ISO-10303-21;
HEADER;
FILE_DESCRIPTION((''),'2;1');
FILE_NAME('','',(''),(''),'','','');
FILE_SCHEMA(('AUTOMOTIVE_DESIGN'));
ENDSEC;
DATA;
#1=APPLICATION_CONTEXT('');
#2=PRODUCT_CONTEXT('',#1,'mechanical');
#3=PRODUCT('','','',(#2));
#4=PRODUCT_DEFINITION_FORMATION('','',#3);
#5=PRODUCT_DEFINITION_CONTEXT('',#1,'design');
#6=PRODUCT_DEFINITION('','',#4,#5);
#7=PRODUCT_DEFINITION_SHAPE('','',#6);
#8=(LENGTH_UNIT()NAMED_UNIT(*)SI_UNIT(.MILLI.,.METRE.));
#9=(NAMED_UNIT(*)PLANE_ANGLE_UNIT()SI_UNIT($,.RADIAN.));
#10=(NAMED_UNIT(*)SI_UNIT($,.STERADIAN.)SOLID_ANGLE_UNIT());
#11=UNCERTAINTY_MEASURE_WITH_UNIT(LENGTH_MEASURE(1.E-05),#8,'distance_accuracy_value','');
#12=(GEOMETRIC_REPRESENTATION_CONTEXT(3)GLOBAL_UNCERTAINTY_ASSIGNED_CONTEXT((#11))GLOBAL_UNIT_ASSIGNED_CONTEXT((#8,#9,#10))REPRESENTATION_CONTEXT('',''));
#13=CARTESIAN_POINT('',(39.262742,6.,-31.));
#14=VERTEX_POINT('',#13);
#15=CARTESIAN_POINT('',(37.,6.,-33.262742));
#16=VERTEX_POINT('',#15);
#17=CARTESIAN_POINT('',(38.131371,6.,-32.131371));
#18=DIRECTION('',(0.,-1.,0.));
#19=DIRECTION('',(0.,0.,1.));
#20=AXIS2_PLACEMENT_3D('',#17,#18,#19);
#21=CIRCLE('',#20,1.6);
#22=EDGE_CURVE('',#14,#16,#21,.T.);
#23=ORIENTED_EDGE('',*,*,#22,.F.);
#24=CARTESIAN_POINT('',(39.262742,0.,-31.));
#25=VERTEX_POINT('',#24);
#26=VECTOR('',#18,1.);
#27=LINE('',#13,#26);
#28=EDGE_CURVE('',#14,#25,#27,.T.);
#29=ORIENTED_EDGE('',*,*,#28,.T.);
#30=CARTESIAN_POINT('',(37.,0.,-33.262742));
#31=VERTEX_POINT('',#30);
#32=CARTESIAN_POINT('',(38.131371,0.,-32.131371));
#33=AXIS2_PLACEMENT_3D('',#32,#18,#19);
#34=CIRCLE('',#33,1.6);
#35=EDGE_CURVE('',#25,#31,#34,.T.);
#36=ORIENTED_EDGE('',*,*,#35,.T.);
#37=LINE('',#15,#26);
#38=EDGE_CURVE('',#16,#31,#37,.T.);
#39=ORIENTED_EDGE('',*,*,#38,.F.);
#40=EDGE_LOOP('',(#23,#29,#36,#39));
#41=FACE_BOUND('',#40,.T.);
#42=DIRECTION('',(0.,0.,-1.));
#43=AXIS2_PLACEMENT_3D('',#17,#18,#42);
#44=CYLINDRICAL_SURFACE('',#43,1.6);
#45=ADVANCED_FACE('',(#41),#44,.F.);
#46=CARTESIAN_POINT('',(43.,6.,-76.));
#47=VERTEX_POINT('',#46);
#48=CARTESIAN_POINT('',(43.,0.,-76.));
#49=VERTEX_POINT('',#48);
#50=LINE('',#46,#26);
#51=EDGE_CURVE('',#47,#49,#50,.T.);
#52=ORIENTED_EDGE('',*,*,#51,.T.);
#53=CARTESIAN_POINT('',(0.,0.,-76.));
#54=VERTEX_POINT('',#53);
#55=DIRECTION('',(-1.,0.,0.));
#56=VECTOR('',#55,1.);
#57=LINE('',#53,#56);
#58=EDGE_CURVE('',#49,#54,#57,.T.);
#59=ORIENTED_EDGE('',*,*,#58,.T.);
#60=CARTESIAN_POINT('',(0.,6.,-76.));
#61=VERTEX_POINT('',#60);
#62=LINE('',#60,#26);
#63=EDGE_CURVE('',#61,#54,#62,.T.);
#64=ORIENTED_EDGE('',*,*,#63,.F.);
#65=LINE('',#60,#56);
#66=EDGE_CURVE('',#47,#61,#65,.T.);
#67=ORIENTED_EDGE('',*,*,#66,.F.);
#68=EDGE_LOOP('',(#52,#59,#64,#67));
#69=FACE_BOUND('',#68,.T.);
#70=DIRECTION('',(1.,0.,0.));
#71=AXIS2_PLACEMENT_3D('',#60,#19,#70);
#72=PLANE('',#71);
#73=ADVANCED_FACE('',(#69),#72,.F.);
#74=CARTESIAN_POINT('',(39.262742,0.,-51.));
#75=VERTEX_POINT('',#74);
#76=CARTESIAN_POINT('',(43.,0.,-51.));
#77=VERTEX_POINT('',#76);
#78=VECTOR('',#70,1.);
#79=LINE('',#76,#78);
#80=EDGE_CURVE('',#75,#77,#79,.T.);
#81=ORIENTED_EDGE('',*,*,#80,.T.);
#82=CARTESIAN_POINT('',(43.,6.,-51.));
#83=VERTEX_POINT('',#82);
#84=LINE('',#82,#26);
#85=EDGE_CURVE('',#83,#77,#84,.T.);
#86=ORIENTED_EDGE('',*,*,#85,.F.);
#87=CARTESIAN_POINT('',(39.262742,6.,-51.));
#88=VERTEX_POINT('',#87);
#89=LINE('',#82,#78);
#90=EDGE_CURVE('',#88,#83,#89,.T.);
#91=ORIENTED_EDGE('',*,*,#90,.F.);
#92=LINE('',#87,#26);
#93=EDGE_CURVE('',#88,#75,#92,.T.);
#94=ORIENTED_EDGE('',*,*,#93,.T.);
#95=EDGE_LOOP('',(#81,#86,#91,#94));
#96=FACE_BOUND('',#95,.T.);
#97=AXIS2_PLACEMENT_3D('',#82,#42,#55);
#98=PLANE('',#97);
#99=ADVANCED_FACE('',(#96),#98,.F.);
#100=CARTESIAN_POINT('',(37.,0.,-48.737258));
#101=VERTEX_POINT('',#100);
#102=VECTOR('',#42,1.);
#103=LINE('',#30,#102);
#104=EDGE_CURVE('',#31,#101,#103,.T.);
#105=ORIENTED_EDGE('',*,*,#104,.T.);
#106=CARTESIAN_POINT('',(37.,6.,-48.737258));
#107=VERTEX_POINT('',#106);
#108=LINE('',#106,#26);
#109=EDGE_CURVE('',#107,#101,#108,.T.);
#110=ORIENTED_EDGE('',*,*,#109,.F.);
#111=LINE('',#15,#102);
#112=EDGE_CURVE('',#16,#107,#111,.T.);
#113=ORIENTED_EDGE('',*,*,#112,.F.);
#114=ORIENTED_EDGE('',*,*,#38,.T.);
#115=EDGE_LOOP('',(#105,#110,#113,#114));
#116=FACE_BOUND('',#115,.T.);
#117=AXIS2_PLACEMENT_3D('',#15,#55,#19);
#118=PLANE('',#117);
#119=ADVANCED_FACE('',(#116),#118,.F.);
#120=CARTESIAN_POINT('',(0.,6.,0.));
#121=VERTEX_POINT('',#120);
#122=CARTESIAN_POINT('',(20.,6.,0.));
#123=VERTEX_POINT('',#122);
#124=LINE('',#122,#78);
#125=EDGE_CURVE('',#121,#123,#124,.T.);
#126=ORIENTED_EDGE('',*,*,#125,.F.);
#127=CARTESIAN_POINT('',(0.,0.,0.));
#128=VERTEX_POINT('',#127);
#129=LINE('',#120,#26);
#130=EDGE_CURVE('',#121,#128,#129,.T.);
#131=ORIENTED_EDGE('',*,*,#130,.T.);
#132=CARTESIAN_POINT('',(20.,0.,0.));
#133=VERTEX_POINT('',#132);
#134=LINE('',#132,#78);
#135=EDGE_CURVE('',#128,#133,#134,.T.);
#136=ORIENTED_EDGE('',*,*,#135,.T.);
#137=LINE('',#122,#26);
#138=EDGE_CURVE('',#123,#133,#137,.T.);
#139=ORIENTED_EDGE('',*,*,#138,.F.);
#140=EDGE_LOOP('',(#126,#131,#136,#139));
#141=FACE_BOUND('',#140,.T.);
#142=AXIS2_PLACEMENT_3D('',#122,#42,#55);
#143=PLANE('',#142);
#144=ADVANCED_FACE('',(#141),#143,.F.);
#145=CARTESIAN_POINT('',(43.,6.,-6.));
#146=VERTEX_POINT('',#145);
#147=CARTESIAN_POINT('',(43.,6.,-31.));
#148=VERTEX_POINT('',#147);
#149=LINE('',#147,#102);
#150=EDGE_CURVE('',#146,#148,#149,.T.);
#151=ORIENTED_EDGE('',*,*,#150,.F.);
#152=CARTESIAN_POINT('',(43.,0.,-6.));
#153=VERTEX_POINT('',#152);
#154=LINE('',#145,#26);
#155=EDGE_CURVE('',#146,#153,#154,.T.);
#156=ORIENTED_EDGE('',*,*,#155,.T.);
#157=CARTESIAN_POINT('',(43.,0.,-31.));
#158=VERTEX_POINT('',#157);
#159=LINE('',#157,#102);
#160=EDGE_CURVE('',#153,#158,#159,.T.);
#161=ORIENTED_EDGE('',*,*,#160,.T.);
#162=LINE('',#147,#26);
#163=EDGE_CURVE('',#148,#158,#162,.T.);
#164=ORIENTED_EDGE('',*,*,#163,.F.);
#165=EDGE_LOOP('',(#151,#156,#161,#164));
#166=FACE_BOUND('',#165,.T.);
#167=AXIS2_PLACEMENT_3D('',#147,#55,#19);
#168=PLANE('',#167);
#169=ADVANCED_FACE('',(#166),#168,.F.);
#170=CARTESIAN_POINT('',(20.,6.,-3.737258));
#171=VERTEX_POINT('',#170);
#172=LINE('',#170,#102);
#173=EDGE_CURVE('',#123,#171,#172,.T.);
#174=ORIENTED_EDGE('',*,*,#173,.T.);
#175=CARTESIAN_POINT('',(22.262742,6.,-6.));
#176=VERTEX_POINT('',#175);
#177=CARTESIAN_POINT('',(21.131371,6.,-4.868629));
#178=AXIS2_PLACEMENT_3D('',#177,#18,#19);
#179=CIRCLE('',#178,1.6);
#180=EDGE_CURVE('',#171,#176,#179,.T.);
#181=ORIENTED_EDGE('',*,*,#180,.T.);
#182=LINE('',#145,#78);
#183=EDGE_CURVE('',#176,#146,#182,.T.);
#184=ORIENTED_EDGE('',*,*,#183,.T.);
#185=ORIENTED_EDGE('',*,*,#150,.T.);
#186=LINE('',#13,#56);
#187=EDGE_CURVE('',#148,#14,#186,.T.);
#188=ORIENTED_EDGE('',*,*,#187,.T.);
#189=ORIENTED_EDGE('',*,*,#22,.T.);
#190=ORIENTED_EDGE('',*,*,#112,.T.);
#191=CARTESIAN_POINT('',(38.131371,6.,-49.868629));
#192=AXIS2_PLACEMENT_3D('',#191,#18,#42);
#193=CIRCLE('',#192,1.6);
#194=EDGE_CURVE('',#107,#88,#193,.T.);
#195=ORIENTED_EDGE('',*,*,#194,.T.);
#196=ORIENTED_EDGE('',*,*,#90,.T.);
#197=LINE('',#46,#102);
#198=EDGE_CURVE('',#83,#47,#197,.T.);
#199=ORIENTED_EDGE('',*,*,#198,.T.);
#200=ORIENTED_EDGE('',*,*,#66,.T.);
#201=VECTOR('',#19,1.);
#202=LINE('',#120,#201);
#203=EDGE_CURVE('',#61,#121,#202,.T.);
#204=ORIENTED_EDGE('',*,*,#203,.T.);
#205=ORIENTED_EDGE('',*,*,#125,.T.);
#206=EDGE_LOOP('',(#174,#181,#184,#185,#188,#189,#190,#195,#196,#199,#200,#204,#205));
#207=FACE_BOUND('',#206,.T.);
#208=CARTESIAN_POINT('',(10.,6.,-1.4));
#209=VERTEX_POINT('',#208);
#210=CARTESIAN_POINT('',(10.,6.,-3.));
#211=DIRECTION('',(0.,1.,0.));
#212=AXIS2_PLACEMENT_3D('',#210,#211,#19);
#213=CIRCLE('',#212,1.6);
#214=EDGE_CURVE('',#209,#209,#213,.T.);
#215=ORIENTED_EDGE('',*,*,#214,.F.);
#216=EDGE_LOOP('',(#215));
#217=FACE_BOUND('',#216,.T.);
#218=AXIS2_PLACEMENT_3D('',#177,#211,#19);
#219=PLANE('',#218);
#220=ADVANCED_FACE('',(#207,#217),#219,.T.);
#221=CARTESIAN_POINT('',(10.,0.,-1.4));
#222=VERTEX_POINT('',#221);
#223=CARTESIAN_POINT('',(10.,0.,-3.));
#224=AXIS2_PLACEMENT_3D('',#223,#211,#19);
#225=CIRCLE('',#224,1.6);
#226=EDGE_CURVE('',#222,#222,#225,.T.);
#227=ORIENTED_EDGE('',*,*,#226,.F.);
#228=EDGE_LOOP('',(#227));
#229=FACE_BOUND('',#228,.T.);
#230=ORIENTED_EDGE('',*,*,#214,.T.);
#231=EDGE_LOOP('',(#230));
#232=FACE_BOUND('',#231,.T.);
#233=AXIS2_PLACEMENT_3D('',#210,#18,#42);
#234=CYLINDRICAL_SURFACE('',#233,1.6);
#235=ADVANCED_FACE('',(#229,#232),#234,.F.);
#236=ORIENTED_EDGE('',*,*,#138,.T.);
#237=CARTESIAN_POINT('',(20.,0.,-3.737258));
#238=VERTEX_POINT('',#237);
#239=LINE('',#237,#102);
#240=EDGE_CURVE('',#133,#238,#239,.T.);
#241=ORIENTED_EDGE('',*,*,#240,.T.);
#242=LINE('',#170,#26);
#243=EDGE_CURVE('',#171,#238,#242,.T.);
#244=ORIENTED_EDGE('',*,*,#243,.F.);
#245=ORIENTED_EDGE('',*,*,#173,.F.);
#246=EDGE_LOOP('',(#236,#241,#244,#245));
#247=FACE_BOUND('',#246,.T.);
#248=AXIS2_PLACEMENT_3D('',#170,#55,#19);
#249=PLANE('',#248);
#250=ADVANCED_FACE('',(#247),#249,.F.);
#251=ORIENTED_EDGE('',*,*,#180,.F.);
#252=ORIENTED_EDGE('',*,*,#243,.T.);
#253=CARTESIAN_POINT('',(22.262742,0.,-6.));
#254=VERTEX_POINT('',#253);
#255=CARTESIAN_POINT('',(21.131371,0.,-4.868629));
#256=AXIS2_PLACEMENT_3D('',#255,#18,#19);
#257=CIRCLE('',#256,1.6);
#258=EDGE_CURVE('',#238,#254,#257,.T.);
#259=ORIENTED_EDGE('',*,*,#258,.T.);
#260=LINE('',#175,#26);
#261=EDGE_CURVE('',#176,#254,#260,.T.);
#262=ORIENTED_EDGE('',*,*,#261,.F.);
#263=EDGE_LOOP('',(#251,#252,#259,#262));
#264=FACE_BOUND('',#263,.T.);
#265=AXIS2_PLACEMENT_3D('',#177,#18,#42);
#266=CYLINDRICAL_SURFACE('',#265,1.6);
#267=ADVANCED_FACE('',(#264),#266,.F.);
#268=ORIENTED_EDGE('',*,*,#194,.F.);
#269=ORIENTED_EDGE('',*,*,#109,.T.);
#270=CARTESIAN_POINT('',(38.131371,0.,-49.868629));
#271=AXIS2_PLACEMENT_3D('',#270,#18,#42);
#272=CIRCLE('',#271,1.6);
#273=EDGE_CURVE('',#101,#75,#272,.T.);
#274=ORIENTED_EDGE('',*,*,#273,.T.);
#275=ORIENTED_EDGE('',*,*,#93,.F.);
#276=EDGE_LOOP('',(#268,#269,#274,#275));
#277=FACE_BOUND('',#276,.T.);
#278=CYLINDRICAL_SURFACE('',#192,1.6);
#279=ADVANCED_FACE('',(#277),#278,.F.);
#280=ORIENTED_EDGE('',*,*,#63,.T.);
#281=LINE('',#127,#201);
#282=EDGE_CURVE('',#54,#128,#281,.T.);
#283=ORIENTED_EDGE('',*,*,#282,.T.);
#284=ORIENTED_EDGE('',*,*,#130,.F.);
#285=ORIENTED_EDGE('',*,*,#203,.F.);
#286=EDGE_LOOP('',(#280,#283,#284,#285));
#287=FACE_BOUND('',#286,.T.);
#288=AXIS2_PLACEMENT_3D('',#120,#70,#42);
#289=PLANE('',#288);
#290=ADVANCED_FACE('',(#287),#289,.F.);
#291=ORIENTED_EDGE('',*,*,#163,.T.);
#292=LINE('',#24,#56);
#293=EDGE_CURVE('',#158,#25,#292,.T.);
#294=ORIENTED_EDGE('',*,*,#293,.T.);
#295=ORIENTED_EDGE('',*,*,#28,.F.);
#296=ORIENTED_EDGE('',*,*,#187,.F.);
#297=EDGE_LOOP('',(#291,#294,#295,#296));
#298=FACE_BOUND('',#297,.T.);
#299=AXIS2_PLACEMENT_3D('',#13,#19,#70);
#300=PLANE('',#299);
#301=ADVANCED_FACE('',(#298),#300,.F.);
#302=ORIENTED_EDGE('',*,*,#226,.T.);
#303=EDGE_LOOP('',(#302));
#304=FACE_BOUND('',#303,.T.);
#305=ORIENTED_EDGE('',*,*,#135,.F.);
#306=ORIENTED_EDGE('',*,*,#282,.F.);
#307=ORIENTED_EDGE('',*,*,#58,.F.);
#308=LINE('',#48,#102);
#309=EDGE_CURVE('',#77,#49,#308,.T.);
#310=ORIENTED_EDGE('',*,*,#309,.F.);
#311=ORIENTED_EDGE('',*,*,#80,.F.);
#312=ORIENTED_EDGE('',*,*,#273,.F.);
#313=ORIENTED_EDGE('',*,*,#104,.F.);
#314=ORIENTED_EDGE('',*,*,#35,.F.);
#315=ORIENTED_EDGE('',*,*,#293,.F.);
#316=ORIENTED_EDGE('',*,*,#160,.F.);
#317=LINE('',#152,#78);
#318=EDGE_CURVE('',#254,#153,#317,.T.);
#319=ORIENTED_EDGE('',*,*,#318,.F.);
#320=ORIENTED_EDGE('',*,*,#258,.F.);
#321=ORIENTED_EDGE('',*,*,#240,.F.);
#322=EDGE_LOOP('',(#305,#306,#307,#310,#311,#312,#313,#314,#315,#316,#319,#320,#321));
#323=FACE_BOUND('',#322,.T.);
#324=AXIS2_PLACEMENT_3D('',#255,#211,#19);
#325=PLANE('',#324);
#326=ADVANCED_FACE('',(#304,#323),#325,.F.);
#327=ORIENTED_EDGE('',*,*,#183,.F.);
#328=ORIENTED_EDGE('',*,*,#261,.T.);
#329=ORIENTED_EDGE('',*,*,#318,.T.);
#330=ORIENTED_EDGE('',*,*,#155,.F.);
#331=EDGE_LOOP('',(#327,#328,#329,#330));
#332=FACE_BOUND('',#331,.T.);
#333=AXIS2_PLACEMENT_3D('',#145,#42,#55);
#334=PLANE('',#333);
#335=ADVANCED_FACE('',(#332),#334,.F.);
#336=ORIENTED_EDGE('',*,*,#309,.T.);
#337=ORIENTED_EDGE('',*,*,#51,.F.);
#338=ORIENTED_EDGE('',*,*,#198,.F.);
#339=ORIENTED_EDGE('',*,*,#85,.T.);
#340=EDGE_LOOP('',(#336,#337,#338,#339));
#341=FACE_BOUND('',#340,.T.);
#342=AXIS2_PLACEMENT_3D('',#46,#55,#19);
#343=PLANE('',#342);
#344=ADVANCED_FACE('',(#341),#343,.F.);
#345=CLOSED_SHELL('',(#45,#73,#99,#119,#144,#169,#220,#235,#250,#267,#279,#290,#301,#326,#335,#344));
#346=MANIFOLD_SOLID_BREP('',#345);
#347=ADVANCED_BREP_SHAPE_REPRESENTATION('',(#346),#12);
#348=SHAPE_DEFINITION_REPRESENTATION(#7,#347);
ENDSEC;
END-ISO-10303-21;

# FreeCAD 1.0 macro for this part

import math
import FreeCAD as App
import Part
import Sketcher
from FreeCAD import Vector
Q = App.Units.Quantity

doc = App.newDocument("Part")
params = doc.addObject("Spreadsheet::Sheet", "Params")
for row, (alias, value) in enumerate([
    ("sketch1_diameter", "3.2 mm"),
    ("sketch1_width", "43 mm"),
    ("sketch1_width2", "20 mm"),
    ("sketch1_height", "25 mm"),
    ("sketch1_height2", "76 mm"),
    ("pad1_length", "6 mm"),
], start=1):
    params.set(f"A{row}", alias)
    params.set(f"B{row}", "=" + value)
    params.setAlias(f"B{row}", alias)

body = doc.addObject("PartDesign::Body", "Body")

sketch1 = doc.addObject("Sketcher::SketchObject", "Sketch")
body.addObject(sketch1)
sketch1.AttachmentSupport = (doc.XZ_Plane, [""])
sketch1.MapMode = "FlatFace"
sketch1.addGeometry([
    Part.LineSegment(Vector(43, -31, 0), Vector(39.262742, -31, 0)),
    Part.ArcOfCircle(Part.Circle(Vector(38.131371, -32.131371, 0), Vector(0, 0, 1), 1.6), math.radians(45), math.radians(225)),
    Part.LineSegment(Vector(37, -33.262742, 0), Vector(37, -48.737258, 0)),
    Part.ArcOfCircle(Part.Circle(Vector(38.131371, -49.868629, 0), Vector(0, 0, 1), 1.6), math.radians(135), math.radians(315)),
    Part.LineSegment(Vector(39.262742, -51, 0), Vector(43, -51, 0)),
    Part.LineSegment(Vector(43, -51, 0), Vector(43, -76, 0)),
    Part.LineSegment(Vector(43, -76, 0), Vector(0, -76, 0)),
    Part.LineSegment(Vector(0, -76, 0), Vector(0, 0, 0)),
    Part.LineSegment(Vector(0, 0, 0), Vector(20, 0, 0)),
    Part.LineSegment(Vector(20, 0, 0), Vector(20, -3.737258, 0)),
    Part.ArcOfCircle(Part.Circle(Vector(21.131371, -4.868629, 0), Vector(0, 0, 1), 1.6), math.radians(135), math.radians(315)),
    Part.LineSegment(Vector(22.262742, -6, 0), Vector(43, -6, 0)),
    Part.LineSegment(Vector(43, -6, 0), Vector(43, -31, 0)),
    Part.Circle(Vector(10, -3, 0), Vector(0, 0, 1), 1.6),
], False)
sketch1.addConstraint([
    Sketcher.Constraint("Coincident", 0, 2, 1, 1),
    Sketcher.Constraint("Coincident", 1, 2, 2, 1),
    Sketcher.Constraint("Coincident", 2, 2, 3, 1),
    Sketcher.Constraint("Coincident", 3, 2, 4, 1),
    Sketcher.Constraint("Coincident", 4, 2, 5, 1),
    Sketcher.Constraint("Coincident", 5, 2, 6, 1),
    Sketcher.Constraint("Coincident", 6, 2, 7, 1),
    Sketcher.Constraint("Coincident", 7, 2, 8, 1),
    Sketcher.Constraint("Coincident", 8, 2, 9, 1),
    Sketcher.Constraint("Coincident", 9, 2, 10, 1),
    Sketcher.Constraint("Coincident", 10, 2, 11, 1),
    Sketcher.Constraint("Coincident", 11, 2, 12, 1),
    Sketcher.Constraint("Coincident", 12, 2, 0, 1),
    Sketcher.Constraint("Horizontal", 0),
    Sketcher.Constraint("Vertical", 2),
    Sketcher.Constraint("Horizontal", 4),
    Sketcher.Constraint("Vertical", 5),
    Sketcher.Constraint("Horizontal", 6),
    Sketcher.Constraint("Vertical", 7),
    Sketcher.Constraint("Horizontal", 8),
    Sketcher.Constraint("Vertical", 9),
    Sketcher.Constraint("Horizontal", 11),
    Sketcher.Constraint("Vertical", 12),
    Sketcher.Constraint("Coincident", 7, 2, -1, 1),
    Sketcher.Constraint("Equal", 1, 3),
    Sketcher.Constraint("Equal", 3, 10),
    Sketcher.Constraint("Equal", 10, 13),
    Sketcher.Constraint("Vertical", 1, 3, 3, 3),
    Sketcher.Constraint("Vertical", 0, 2, 3, 2),
    Sketcher.Constraint("Vertical", 5, 2, 11, 2),
    Sketcher.Constraint("Equal", 4, 9),
    Sketcher.Constraint("Equal", 5, 12),
    Sketcher.Constraint("Diameter", 13, Q("3.2 mm")),
    Sketcher.Constraint("DistanceX", 6, 2, 6, 1, Q("43 mm")),
    Sketcher.Constraint("DistanceX", 8, 1, 8, 2, Q("20 mm")),
    Sketcher.Constraint("DistanceY", 5, 2, 5, 1, Q("25 mm")),
    Sketcher.Constraint("DistanceY", 7, 1, 7, 2, Q("76 mm")),
    Sketcher.Constraint("DistanceX", -1, 1, 13, 3, Q("10 mm")),
    Sketcher.Constraint("DistanceY", 13, 3, -1, 1, Q("3 mm")),
    Sketcher.Constraint("DistanceY", 0, 2, -1, 1, Q("31 mm")),
    Sketcher.Constraint("DistanceX", -1, 1, 1, 2, Q("37 mm")),
    Sketcher.Constraint("DistanceX", 10, 3, 1, 3, Q("17 mm")),
    Sketcher.Constraint("DistanceY", 3, 3, 10, 3, Q("45 mm")),
    Sketcher.Constraint("DistanceX", -1, 1, 1, 3, Q("38.131371 mm")),
])
sketch1.setExpression("Constraints[32]", "Params.sketch1_diameter")
sketch1.setExpression("Constraints[33]", "Params.sketch1_width")
sketch1.setExpression("Constraints[34]", "Params.sketch1_width2")
sketch1.setExpression("Constraints[35]", "Params.sketch1_height")
sketch1.setExpression("Constraints[36]", "Params.sketch1_height2")
pad1 = doc.addObject("PartDesign::Pad", "Pad")
body.addObject(pad1)
pad1.Profile = sketch1
pad1.setExpression("Length", "Params.pad1_length")
pad1.Reversed = True

doc.recompute()
